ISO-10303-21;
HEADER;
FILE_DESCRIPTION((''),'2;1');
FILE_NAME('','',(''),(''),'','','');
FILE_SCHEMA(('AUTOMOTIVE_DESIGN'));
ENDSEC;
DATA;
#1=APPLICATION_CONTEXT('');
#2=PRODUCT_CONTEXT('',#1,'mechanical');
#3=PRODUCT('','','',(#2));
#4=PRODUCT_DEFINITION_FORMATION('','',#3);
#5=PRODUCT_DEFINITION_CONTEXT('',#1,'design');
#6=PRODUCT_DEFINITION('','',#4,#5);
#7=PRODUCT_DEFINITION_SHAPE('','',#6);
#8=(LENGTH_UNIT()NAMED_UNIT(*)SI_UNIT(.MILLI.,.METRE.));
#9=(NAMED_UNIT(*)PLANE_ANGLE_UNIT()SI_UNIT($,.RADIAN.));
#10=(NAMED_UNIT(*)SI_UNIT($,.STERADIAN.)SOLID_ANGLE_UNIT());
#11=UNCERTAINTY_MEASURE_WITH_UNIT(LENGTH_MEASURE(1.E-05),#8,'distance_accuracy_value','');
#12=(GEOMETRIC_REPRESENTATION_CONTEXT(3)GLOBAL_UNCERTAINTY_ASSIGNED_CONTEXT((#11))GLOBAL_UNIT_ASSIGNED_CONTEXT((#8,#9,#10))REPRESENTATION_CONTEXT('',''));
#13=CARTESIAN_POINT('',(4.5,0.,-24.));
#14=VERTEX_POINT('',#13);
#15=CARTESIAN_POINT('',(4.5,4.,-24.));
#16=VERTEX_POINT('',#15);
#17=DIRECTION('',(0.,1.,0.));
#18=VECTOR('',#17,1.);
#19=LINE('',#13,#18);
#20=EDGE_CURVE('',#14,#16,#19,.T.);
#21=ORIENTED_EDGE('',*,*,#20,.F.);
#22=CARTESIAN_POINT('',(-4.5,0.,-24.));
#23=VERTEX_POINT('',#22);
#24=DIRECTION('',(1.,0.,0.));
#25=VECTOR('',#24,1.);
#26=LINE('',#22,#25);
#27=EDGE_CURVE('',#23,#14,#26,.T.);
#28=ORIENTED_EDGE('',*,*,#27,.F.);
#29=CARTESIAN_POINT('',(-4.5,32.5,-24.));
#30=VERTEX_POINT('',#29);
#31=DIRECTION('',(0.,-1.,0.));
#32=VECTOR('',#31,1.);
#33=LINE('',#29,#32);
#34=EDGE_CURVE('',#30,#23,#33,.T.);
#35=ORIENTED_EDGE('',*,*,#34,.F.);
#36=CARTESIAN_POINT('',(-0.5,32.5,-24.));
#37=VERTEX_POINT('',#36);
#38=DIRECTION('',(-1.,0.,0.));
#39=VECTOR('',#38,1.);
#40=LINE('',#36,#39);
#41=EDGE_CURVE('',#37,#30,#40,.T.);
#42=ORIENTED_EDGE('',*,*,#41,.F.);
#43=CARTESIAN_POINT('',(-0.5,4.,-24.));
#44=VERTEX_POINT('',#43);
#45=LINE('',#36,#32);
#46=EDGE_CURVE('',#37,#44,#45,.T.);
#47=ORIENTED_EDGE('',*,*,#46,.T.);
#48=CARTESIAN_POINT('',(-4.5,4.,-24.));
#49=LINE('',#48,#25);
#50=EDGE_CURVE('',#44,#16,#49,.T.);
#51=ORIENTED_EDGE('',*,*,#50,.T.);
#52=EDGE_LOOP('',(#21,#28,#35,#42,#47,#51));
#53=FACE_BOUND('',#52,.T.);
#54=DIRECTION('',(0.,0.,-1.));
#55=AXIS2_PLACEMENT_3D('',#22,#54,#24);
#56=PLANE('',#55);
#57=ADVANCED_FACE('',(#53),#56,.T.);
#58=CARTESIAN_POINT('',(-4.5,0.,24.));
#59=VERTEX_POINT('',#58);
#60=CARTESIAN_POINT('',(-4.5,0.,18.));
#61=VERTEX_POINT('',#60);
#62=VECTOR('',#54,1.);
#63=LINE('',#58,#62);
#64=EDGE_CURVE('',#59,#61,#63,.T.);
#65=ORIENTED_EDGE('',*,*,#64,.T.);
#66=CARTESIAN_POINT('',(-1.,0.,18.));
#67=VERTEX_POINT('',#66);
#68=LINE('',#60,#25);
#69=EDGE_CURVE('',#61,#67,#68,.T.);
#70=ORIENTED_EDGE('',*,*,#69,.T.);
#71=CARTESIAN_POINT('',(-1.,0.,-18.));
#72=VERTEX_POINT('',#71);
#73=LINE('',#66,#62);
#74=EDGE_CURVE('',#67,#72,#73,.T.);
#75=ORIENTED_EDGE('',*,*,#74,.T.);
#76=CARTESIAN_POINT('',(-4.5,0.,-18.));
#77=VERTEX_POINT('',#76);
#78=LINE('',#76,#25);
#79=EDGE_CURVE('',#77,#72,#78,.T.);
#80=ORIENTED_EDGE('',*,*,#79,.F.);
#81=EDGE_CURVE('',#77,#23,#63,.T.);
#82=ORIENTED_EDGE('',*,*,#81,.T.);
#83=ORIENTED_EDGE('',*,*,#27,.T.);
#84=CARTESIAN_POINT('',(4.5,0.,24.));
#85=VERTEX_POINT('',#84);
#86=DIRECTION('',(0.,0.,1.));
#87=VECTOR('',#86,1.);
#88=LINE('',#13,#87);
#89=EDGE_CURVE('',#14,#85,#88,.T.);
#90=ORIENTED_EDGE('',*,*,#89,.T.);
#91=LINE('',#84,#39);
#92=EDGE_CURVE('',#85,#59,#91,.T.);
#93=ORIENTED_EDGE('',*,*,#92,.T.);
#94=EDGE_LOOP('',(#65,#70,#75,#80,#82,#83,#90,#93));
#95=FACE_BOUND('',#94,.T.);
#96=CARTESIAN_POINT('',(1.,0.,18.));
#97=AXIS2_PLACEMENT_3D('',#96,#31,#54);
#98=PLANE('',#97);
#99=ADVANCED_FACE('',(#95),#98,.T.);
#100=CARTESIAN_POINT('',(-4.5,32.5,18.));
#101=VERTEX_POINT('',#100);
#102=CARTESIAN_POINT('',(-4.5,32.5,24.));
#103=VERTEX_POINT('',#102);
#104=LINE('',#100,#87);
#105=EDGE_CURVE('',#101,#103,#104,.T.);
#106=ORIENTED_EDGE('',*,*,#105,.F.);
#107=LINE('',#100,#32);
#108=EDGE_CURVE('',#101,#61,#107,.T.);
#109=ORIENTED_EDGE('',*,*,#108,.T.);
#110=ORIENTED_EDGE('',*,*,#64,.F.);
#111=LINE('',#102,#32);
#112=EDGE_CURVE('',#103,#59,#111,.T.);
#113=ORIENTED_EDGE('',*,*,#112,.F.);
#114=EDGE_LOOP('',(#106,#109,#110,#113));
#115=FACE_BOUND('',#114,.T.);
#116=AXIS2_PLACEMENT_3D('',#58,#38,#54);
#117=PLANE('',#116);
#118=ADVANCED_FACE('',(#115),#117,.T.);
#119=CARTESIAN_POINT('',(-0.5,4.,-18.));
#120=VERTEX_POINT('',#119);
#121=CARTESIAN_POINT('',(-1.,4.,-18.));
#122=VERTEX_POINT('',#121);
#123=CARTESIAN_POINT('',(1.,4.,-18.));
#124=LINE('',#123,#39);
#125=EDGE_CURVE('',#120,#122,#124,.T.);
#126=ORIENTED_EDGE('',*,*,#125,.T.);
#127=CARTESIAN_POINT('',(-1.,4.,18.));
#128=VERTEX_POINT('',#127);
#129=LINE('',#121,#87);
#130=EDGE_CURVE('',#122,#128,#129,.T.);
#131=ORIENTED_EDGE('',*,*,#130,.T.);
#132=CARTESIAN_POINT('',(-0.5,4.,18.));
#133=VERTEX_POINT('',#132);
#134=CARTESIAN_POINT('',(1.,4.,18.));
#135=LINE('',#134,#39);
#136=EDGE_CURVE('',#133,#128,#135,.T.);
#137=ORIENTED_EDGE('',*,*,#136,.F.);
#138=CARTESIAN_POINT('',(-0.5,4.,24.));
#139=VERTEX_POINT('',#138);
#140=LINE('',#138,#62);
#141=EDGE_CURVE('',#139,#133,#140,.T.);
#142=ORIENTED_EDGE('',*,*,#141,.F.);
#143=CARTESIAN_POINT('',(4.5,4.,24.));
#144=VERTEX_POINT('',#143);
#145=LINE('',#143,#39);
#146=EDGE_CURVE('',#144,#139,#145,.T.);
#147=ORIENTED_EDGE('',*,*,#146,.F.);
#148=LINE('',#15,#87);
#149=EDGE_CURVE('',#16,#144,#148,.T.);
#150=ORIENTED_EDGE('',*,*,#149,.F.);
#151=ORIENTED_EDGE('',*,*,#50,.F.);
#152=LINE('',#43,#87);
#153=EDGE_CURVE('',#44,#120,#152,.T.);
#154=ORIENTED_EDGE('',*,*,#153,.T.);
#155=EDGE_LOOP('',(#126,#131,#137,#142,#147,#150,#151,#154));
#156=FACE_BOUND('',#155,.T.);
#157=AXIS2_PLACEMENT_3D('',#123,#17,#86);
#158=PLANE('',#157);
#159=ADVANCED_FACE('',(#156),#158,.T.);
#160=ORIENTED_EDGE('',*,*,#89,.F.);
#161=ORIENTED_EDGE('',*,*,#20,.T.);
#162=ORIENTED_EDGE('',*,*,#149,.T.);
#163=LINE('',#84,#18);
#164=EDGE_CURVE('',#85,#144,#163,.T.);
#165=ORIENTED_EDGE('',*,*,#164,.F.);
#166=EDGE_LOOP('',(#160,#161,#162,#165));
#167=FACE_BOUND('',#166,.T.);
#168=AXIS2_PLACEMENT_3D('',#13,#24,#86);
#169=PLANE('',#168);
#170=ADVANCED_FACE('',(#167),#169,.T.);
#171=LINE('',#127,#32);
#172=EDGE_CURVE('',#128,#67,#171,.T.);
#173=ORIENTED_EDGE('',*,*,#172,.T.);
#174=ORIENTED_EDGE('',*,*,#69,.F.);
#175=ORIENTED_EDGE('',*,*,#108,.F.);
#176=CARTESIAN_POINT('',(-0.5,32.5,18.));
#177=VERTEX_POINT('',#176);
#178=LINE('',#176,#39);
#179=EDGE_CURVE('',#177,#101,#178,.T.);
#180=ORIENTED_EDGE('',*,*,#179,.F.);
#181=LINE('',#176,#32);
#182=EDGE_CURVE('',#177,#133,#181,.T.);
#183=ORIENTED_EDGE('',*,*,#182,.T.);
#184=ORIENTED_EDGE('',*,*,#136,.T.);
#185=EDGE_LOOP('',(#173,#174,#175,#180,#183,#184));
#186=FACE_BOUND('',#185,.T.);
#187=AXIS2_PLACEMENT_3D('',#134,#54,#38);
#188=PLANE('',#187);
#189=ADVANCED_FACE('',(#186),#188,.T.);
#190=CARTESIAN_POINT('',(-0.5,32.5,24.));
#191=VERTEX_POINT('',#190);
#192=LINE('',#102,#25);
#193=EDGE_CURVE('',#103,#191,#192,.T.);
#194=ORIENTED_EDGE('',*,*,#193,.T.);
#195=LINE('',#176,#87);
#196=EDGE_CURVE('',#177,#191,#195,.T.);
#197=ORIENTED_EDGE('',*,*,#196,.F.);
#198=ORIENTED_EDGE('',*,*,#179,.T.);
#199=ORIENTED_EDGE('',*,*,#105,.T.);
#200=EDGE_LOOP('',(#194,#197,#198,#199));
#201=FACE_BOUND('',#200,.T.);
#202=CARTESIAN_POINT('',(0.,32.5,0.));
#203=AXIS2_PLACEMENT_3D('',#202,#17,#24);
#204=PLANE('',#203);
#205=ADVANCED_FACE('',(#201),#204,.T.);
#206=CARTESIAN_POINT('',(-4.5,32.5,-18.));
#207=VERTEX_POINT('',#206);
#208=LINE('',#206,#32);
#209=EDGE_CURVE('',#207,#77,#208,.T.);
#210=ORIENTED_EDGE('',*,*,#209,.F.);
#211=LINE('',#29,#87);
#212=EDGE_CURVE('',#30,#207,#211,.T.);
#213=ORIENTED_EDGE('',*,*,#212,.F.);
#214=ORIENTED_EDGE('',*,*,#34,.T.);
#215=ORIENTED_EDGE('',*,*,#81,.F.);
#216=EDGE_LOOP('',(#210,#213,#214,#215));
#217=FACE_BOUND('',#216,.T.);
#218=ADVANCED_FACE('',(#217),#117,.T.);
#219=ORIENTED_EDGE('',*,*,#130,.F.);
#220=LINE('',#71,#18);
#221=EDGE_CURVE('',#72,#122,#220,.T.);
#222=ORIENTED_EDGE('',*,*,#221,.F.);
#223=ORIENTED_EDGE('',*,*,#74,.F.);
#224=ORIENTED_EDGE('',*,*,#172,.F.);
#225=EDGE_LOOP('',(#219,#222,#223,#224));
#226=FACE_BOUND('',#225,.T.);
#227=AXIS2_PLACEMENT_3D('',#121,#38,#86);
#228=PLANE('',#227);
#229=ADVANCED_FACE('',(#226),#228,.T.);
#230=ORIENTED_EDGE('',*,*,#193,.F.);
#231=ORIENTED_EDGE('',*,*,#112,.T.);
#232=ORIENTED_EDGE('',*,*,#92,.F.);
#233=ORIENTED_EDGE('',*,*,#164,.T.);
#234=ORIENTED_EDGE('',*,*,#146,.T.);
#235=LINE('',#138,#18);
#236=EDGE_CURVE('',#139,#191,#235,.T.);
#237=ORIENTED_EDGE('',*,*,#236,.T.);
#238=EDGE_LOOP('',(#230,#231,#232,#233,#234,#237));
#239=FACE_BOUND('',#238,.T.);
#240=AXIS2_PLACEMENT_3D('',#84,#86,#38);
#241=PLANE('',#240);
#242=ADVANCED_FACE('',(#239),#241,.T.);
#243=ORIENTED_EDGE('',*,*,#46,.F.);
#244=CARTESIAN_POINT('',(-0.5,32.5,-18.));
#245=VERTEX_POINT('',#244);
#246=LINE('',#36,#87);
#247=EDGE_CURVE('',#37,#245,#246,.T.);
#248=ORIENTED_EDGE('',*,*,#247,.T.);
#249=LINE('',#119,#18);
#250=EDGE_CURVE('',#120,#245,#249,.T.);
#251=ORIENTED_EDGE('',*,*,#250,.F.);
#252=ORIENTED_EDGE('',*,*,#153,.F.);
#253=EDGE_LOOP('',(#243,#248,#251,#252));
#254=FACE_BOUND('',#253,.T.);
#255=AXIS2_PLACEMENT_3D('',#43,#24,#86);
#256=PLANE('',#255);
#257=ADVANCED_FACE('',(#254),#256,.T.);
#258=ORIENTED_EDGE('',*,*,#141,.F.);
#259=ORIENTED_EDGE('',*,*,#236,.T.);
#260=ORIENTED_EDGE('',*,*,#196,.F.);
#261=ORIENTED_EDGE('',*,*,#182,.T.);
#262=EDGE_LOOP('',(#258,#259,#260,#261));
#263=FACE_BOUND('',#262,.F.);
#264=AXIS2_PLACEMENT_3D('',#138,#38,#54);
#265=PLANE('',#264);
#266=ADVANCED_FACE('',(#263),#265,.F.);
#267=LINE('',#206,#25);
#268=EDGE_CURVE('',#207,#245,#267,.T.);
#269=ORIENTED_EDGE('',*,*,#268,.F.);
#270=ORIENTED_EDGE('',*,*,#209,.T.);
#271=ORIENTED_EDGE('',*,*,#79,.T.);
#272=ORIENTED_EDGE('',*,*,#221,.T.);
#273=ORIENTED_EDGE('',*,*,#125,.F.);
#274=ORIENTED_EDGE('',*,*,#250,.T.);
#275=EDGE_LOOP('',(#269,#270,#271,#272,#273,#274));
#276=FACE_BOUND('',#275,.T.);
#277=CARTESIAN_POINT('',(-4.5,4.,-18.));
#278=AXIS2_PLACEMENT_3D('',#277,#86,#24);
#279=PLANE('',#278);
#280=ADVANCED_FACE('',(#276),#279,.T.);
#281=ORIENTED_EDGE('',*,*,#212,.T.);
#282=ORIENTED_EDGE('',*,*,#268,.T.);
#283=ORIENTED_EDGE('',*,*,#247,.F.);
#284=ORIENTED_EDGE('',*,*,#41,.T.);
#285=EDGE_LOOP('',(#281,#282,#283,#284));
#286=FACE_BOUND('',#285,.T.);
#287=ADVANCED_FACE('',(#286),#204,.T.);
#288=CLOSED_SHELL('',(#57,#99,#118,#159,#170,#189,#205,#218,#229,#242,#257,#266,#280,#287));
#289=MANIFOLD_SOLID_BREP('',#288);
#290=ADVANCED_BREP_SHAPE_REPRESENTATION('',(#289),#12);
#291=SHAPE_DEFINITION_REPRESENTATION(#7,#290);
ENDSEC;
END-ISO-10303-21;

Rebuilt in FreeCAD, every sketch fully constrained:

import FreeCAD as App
import Part
import Sketcher
from FreeCAD import Vector
Q = App.Units.Quantity

doc = App.newDocument("Part")
body = doc.addObject("PartDesign::Body", "Body")

# Sketch on XZ plane
sketch1 = body.newObject("Sketcher::SketchObject", "Sketch")
sketch1.AttachmentSupport = (doc.getObject("XZ_Plane"), [""])
sketch1.MapMode = "FlatFace"
sketch1.addGeometry([
    Part.LineSegment(Vector(-4, 24, 0), Vector(4, 24, 0)),
    Part.LineSegment(Vector(4, 24, 0), Vector(4, -24, 0)),
    Part.LineSegment(Vector(4, -24, 0), Vector(-4, -24, 0)),
    Part.LineSegment(Vector(-4, -24, 0), Vector(-4, 24, 0)),
], False)
sketch1.addConstraint([
    Sketcher.Constraint("Coincident", 0, 2, 1, 1),
    Sketcher.Constraint("Coincident", 1, 2, 2, 1),
    Sketcher.Constraint("Coincident", 2, 2, 3, 1),
    Sketcher.Constraint("Coincident", 3, 2, 0, 1),
    Sketcher.Constraint("Horizontal", 0),
    Sketcher.Constraint("Vertical", 1),
    Sketcher.Constraint("Horizontal", 2),
    Sketcher.Constraint("Vertical", 3),
    Sketcher.Constraint("Symmetric", 0, 2, 2, 2, -1, 1),
    Sketcher.Constraint("DistanceX", 0, 1, 0, 2, Q("9 mm")),
    Sketcher.Constraint("DistanceY", 1, 2, 1, 1, Q("48 mm")),
])
pad1 = body.newObject("PartDesign::Pad", "Pad")
pad1.Profile = sketch1
pad1.Length = 4
pad1.Reversed = True

# Sketch on XZ plane
sketch2 = body.newObject("Sketcher::SketchObject", "Sketch001")
sketch2.AttachmentSupport = (doc.getObject("XZ_Plane"), [""])
sketch2.MapMode = "FlatFace"
sketch2.AttachmentOffset = App.Placement(Vector(0, 0, -4), App.Rotation())
sketch2.addGeometry([
    Part.LineSegment(Vector(-0.5, -18, 0), Vector(-0.5, -24, 0)),  # 0
    Part.LineSegment(Vector(-0.5, -24, 0), Vector(-4.5, -24, 0)),  # 1
    Part.LineSegment(Vector(-4.5, -24, 0), Vector(-4.5, -18, 0)),  # 2
    Part.LineSegment(Vector(-4.5, -18, 0), Vector(-0.5, -18, 0)),  # 3
    Part.LineSegment(Vector(-4.5, 18, 0), Vector(-4.5, 24, 0)),  # 4
    Part.LineSegment(Vector(-4.5, 24, 0), Vector(-0.5, 24, 0)),  # 5
    Part.LineSegment(Vector(-0.5, 24, 0), Vector(-0.5, 18, 0)),  # 6
    Part.LineSegment(Vector(-0.5, 18, 0), Vector(-4.5, 18, 0)),  # 7
], False)
sketch2.addConstraint([
    Sketcher.Constraint("Coincident", 0, 2, 1, 1),
    Sketcher.Constraint("Coincident", 1, 2, 2, 1),
    Sketcher.Constraint("Coincident", 2, 2, 3, 1),
    Sketcher.Constraint("Coincident", 3, 2, 0, 1),
    Sketcher.Constraint("Coincident", 4, 2, 5, 1),
    Sketcher.Constraint("Coincident", 5, 2, 6, 1),
    Sketcher.Constraint("Coincident", 6, 2, 7, 1),
    Sketcher.Constraint("Coincident", 7, 2, 4, 1),
    Sketcher.Constraint("Vertical", 0),
    Sketcher.Constraint("Horizontal", 1),
    Sketcher.Constraint("Vertical", 2),
    Sketcher.Constraint("Horizontal", 3),
    Sketcher.Constraint("Vertical", 4),
    Sketcher.Constraint("Horizontal", 5),
    Sketcher.Constraint("Vertical", 6),
    Sketcher.Constraint("Horizontal", 7),
    Sketcher.Constraint("Symmetric", 1, 2, 4, 2, -1),
    Sketcher.Constraint("Symmetric", 3, 2, 6, 2, -1),
    Sketcher.Constraint("DistanceX", 1, 2, 1, 1, Q("4 mm")),
    Sketcher.Constraint("DistanceY", 0, 2, 0, 1, Q("6 mm")),
    Sketcher.Constraint("DistanceY", 0, 2, -1, 1, Q("24 mm")),
    Sketcher.Constraint("DistanceX", 0, 2, -1, 1, Q("0.5 mm")),
])
pad2 = body.newObject("PartDesign::Pad", "Pad001")
pad2.Profile = sketch2
pad2.Length = 24.5
pad2.Reversed = True

# Sketch on XZ plane
sketch3 = body.newObject("Sketcher::SketchObject", "Sketch002")
sketch3.AttachmentSupport = (doc.getObject("XZ_Plane"), [""])
sketch3.MapMode = "FlatFace"
sketch3.AttachmentOffset = App.Placement(Vector(0, 0, -4), App.Rotation())
sketch3.addGeometry([
    Part.LineSegment(Vector(1, -18, 0), Vector(-4, -18, 0)),
    Part.LineSegment(Vector(-4, -18, 0), Vector(-4, 18, 0)),
    Part.LineSegment(Vector(-4, 18, 0), Vector(1, 18, 0)),
    Part.LineSegment(Vector(1, 18, 0), Vector(1, -18, 0)),
], False)
sketch3.addConstraint([
    Sketcher.Constraint("Coincident", 0, 2, 1, 1),
    Sketcher.Constraint("Coincident", 1, 2, 2, 1),
    Sketcher.Constraint("Coincident", 2, 2, 3, 1),
    Sketcher.Constraint("Coincident", 3, 2, 0, 1),
    Sketcher.Constraint("Horizontal", 0),
    Sketcher.Constraint("Vertical", 1),
    Sketcher.Constraint("Horizontal", 2),
    Sketcher.Constraint("Vertical", 3),
    Sketcher.Constraint("DistanceY", 1, 1, 1, 2, Q("36 mm")),
    Sketcher.Constraint("DistanceX", 0, 2, 0, 1, Q("5.5 mm")),
    Sketcher.Constraint("DistanceY", 0, 2, -1, 1, Q("18 mm")),
    Sketcher.Constraint("DistanceX", -1, 1, 2, 2, Q("1 mm")),
])
pocket1 = body.newObject("PartDesign::Pocket", "Pocket")
pocket1.Profile = sketch3
pocket1.Length = 4
pocket1.Reversed = True

# Sketch on YZ plane
sketch4 = body.newObject("Sketcher::SketchObject", "Sketch003")
sketch4.AttachmentSupport = (doc.getObject("YZ_Plane"), [""])
sketch4.MapMode = "FlatFace"
sketch4.AttachmentOffset = App.Placement(Vector(0, 0, 1), App.Rotation())
sketch4.addGeometry([
    Part.LineSegment(Vector(0, -18, 0), Vector(0, 18, 0)),
    Part.LineSegment(Vector(0, 18, 0), Vector(4, 18, 0)),
    Part.LineSegment(Vector(4, 18, 0), Vector(4, -18, 0)),
    Part.LineSegment(Vector(4, -18, 0), Vector(0, -18, 0)),
], False)
sketch4.addConstraint([
    Sketcher.Constraint("Coincident", 0, 2, 1, 1),
    Sketcher.Constraint("Coincident", 1, 2, 2, 1),
    Sketcher.Constraint("Coincident", 2, 2, 3, 1),
    Sketcher.Constraint("Coincident", 3, 2, 0, 1),
    Sketcher.Constraint("Vertical", 0),
    Sketcher.Constraint("Horizontal", 1),
    Sketcher.Constraint("Vertical", 2),
    Sketcher.Constraint("Horizontal", 3),
    Sketcher.Constraint("Symmetric", 0, 2, 3, 2, -1, 1),
    Sketcher.Constraint("DistanceX", 1, 1, 1, 2, Q("4 mm")),
    Sketcher.Constraint("DistanceY", 0, 1, 0, 2, Q("36 mm")),
])
pad3 = body.newObject("PartDesign::Pad", "Pad002")
pad3.Profile = sketch4
pad3.Length = 2
pad3.Reversed = True

# Sketch on XZ plane
sketch5 = body.newObject("Sketcher::SketchObject", "Sketch004")
sketch5.AttachmentSupport = (doc.getObject("XZ_Plane"), [""])
sketch5.MapMode = "FlatFace"
sketch5.AttachmentOffset = App.Placement(Vector(0, 0, -28.5), App.Rotation())
sketch5.addGeometry([
    Part.LineSegment(Vector(-0.5, 18, 0), Vector(-4.5, 18, 0)),  # 0
    Part.LineSegment(Vector(-4.5, 18, 0), Vector(-4.5, 24, 0)),  # 1
    Part.LineSegment(Vector(-4.5, 24, 0), Vector(-0.5, 24, 0)),  # 2
    Part.LineSegment(Vector(-0.5, 24, 0), Vector(-0.5, 18, 0)),  # 3
    Part.LineSegment(Vector(-0.5, -24, 0), Vector(-4.5, -24, 0)),  # 4
    Part.LineSegment(Vector(-4.5, -24, 0), Vector(-4.5, -18, 0)),  # 5
    Part.LineSegment(Vector(-4.5, -18, 0), Vector(-0.5, -18, 0)),  # 6
    Part.LineSegment(Vector(-0.5, -18, 0), Vector(-0.5, -24, 0)),  # 7
], False)
sketch5.addConstraint([
    Sketcher.Constraint("Coincident", 0, 2, 1, 1),
    Sketcher.Constraint("Coincident", 1, 2, 2, 1),
    Sketcher.Constraint("Coincident", 2, 2, 3, 1),
    Sketcher.Constraint("Coincident", 3, 2, 0, 1),
    Sketcher.Constraint("Coincident", 4, 2, 5, 1),
    Sketcher.Constraint("Coincident", 5, 2, 6, 1),
    Sketcher.Constraint("Coincident", 6, 2, 7, 1),
    Sketcher.Constraint("Coincident", 7, 2, 4, 1),
    Sketcher.Constraint("Horizontal", 0),
    Sketcher.Constraint("Vertical", 1),
    Sketcher.Constraint("Horizontal", 2),
    Sketcher.Constraint("Vertical", 3),
    Sketcher.Constraint("Horizontal", 4),
    Sketcher.Constraint("Vertical", 5),
    Sketcher.Constraint("Horizontal", 6),
    Sketcher.Constraint("Vertical", 7),
    Sketcher.Constraint("Symmetric", 1, 2, 4, 2, -1),
    Sketcher.Constraint("Symmetric", 3, 2, 6, 2, -1),
    Sketcher.Constraint("DistanceX", 0, 2, 0, 1, Q("4 mm")),
    Sketcher.Constraint("DistanceY", 1, 1, 1, 2, Q("6 mm")),
    Sketcher.Constraint("DistanceY", -1, 1, 0, 2, Q("18 mm")),
    Sketcher.Constraint("DistanceX", 0, 2, -1, 1, Q("4.5 mm")),
])
pad4 = body.newObject("PartDesign::Pad", "Pad003")
pad4.Profile = sketch5
pad4.Length = 4
pad4.Reversed = True

doc.recompute()
